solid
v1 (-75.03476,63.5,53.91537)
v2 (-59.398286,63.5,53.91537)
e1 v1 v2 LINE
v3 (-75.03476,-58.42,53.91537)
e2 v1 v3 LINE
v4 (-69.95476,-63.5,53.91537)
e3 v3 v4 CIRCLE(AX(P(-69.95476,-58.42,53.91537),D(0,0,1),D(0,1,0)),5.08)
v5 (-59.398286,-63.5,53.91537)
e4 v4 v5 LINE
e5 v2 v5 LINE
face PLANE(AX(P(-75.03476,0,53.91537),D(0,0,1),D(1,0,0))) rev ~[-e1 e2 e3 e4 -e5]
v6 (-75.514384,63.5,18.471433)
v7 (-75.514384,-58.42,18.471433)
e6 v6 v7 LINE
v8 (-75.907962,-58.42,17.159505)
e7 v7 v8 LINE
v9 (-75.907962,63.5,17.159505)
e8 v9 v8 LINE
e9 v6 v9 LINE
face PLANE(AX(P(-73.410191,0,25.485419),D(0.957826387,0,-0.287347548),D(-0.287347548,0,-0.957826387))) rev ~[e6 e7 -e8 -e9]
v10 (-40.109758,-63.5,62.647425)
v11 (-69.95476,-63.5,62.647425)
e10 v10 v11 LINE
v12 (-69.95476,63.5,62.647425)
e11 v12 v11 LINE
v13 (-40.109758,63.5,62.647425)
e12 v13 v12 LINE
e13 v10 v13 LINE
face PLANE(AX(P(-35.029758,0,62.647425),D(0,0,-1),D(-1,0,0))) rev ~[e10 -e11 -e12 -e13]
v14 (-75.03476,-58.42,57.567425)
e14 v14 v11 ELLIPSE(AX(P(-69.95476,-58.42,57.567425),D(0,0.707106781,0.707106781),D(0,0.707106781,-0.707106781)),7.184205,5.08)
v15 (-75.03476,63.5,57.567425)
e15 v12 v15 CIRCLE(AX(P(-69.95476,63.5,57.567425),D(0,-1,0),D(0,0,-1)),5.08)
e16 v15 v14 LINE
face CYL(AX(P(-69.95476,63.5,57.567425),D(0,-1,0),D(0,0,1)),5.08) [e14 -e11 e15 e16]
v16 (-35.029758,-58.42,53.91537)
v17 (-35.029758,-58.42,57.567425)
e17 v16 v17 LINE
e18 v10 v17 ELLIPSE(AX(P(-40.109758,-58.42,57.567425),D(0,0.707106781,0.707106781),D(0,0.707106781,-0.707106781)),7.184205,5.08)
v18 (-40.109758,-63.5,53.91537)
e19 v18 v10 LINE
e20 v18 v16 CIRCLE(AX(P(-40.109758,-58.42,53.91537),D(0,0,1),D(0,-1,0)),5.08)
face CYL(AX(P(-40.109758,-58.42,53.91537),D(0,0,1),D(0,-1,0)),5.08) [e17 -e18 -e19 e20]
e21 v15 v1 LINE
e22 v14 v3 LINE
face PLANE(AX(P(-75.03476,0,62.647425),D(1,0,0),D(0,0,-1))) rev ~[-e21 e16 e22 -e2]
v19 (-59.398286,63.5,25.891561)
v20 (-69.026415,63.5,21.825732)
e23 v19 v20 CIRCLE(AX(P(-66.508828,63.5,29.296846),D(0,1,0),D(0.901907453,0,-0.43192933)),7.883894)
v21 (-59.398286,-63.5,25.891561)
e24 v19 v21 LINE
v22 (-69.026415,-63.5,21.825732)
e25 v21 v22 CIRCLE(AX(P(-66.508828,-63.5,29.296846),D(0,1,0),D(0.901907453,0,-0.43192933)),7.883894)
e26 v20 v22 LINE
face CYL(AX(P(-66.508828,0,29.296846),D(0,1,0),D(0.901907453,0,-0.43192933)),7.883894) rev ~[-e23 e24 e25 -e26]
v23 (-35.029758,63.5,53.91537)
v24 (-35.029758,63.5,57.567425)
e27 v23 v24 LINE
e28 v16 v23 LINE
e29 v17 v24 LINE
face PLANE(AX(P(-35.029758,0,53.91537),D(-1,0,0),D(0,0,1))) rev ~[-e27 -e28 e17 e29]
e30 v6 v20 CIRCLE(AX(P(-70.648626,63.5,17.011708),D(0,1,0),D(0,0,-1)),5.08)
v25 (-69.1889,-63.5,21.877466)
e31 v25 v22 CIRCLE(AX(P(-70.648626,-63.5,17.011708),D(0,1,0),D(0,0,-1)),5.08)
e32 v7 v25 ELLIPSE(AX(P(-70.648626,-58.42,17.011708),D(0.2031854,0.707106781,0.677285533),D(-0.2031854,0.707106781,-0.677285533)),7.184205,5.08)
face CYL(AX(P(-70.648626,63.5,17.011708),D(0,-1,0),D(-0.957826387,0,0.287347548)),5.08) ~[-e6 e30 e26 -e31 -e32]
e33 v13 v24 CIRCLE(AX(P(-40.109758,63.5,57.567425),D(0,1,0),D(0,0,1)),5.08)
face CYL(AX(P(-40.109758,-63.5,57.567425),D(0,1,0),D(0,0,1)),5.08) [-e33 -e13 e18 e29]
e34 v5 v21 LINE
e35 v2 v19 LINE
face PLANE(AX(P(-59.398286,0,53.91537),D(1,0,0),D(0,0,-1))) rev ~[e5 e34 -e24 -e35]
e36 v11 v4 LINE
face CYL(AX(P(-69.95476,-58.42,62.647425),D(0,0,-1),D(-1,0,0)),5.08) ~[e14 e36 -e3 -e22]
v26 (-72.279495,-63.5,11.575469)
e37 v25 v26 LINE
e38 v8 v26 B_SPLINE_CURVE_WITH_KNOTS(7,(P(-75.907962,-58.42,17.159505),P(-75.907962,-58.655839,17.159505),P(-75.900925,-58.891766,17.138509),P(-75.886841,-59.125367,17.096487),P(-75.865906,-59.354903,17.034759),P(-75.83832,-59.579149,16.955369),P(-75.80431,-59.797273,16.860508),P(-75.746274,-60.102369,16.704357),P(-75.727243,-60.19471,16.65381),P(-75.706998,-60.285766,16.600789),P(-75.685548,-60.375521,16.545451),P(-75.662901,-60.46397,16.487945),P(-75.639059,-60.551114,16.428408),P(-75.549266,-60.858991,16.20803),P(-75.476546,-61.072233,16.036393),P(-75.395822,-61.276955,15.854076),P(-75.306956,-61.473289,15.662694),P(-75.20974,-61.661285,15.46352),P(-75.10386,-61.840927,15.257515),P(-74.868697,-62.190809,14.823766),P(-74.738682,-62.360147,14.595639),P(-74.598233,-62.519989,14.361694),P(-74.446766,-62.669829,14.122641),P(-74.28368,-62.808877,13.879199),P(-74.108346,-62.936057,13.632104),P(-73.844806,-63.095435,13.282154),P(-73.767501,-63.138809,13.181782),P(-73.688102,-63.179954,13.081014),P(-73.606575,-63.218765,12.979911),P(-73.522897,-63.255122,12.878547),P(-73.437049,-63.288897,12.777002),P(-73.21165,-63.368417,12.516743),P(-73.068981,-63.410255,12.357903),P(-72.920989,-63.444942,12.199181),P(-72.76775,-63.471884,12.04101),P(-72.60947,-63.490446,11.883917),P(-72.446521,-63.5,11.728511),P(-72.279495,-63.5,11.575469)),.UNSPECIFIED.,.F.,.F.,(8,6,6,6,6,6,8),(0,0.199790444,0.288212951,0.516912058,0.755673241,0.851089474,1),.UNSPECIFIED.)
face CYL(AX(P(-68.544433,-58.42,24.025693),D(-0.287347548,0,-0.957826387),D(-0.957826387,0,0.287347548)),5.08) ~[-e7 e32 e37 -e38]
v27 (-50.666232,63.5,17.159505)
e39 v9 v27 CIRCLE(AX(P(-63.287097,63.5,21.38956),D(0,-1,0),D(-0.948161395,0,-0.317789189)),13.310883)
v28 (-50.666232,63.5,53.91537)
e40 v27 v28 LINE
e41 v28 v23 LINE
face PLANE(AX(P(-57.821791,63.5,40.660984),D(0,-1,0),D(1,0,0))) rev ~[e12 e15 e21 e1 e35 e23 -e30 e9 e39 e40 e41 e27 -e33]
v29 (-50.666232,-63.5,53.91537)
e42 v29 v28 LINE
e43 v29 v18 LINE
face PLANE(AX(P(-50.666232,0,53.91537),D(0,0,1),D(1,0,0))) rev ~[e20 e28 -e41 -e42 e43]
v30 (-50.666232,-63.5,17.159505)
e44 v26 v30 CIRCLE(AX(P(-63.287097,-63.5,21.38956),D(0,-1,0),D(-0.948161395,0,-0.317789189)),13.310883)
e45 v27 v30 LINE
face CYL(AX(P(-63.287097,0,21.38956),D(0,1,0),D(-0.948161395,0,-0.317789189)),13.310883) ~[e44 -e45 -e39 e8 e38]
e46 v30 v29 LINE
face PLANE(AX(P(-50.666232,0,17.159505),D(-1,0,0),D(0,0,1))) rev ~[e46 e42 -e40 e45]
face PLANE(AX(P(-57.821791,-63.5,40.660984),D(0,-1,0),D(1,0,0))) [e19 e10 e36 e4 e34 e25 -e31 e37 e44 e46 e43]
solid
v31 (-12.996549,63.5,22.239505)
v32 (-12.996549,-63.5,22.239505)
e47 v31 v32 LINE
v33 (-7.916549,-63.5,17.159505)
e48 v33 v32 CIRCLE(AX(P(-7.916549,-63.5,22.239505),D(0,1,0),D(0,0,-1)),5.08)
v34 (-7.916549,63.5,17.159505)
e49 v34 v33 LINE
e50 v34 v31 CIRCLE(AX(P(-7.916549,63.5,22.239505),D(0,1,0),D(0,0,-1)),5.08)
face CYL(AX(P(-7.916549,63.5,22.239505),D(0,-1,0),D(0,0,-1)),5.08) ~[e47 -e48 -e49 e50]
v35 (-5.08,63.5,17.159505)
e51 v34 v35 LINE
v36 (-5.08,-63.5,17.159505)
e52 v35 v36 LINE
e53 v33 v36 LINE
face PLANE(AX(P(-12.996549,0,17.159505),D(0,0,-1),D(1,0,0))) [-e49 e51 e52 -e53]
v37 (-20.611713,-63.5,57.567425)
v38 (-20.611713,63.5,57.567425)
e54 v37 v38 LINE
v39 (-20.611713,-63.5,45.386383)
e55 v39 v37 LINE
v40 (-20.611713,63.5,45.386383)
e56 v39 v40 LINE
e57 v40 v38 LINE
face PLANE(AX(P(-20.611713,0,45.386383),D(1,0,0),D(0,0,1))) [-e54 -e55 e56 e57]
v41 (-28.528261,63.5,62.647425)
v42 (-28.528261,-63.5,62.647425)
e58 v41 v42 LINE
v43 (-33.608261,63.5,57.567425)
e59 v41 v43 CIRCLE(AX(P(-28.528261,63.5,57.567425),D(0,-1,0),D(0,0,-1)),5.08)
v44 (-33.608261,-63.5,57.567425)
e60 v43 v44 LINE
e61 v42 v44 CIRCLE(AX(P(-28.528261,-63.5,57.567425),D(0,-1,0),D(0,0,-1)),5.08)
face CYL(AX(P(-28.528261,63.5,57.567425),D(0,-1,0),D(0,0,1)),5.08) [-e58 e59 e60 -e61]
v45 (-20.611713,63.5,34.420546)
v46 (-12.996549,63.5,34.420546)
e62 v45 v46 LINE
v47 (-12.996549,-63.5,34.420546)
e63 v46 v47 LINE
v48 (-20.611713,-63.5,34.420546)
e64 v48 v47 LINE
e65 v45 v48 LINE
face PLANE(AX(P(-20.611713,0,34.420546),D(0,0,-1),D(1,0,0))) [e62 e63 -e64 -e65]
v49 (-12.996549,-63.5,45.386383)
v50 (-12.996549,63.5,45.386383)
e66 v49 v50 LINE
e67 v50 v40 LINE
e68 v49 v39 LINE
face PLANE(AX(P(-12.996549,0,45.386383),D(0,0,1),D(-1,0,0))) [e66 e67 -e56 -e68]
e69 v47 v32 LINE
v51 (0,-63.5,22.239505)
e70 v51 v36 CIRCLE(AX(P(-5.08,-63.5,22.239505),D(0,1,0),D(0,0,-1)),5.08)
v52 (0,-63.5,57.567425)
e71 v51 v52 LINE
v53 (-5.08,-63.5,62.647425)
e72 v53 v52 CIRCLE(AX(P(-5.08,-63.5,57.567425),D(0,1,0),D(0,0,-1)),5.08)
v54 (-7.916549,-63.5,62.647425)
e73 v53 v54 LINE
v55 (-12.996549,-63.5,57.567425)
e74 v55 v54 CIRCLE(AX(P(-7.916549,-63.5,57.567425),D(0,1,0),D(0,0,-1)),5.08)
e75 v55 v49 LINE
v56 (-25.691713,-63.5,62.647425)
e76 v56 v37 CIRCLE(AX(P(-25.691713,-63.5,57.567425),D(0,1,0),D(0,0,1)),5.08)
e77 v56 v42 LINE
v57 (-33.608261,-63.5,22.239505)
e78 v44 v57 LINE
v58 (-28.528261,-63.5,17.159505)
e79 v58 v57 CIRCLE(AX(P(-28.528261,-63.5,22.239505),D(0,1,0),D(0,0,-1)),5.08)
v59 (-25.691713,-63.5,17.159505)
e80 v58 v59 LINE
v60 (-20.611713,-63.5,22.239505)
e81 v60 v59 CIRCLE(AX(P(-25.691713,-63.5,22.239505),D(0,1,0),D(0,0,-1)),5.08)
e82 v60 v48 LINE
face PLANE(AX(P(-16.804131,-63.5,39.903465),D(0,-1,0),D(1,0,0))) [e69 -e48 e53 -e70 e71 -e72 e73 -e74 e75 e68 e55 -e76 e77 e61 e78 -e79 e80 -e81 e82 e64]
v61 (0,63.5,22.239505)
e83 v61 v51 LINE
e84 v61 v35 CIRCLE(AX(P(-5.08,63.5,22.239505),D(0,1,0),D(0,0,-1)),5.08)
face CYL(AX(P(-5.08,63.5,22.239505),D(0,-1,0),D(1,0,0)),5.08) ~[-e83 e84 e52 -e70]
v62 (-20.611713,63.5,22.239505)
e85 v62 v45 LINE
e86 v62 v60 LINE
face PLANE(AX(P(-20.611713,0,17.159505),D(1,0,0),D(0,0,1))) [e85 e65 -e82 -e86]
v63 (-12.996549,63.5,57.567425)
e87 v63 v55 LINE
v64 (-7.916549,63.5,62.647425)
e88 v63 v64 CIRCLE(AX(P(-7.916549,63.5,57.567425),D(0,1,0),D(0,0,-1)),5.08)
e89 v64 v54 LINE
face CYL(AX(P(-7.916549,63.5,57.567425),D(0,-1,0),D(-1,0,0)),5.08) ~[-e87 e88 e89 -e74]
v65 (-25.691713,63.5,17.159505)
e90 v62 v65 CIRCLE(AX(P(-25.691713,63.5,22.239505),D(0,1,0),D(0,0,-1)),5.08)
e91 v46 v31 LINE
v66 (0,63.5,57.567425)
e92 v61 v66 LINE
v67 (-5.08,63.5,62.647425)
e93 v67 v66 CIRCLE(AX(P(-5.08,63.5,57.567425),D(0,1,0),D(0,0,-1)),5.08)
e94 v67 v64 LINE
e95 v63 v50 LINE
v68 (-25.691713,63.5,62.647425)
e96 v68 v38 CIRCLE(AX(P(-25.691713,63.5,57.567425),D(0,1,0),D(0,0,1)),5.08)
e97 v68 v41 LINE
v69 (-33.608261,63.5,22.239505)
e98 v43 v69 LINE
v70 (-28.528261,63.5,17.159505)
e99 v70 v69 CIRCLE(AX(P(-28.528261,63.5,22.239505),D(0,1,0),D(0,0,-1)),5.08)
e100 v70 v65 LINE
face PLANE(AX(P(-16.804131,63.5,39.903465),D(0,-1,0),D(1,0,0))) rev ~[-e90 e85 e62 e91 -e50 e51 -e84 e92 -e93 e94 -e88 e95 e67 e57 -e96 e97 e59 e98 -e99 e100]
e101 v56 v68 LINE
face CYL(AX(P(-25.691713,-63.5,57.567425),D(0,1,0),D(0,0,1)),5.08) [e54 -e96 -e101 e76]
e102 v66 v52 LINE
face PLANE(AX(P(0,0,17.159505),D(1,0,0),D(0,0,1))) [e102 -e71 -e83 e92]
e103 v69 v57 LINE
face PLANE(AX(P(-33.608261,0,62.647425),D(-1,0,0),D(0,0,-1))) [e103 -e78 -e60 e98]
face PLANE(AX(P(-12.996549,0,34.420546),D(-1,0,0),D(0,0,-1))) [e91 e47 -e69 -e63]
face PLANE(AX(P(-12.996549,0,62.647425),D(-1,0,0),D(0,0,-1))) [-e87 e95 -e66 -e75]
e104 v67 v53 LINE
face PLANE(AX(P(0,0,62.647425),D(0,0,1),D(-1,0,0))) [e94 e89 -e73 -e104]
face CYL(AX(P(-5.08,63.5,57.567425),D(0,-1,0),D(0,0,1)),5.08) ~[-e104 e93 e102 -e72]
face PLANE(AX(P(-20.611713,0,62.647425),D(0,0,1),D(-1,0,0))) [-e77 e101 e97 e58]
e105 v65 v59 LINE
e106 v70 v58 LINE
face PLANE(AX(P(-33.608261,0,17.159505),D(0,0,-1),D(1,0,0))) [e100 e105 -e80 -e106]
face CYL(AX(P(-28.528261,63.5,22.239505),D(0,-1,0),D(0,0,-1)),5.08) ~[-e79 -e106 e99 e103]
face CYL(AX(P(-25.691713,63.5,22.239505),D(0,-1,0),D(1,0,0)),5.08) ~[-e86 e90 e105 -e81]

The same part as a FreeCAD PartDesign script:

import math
import FreeCAD as App
import Part
import Sketcher
Q = App.Units.Quantity


def edges_at(feature, points):
    """Names of the edges that pass closest to the given points."""
    edges = feature.Shape.Edges
    near = lambda p: min(range(len(edges)), key=lambda i: edges[i].distToShape(Part.Vertex(*p))[0])
    return sorted({f"Edge{near(p) + 1}" for p in points})


def add_polygon(sketch, points):
    """Adds a closed chain of lines whose ends are joined by coincident constraints."""
    first, n = sketch.GeometryCount, len(points)
    for a, b in zip(points, points[1:] + points[:1]):
        sketch.addGeometry(Part.LineSegment(App.Vector(*a, 0), App.Vector(*b, 0)), False)
    for i in range(n):
        sketch.addConstraint(Sketcher.Constraint("Coincident", first + i, 2, first + (i + 1) % n, 1))

doc = App.newDocument("Part")
body = doc.addObject("PartDesign::Body", "Body")
body.AllowCompound = True

sketch1 = body.newObject("Sketcher::SketchObject", "Sketch")
sketch1.AttachmentSupport = (doc.getObject("XZ_Plane"), [""])
sketch1.MapMode = "FlatFace"
sketch1.addGeometry(Part.LineSegment(App.Vector(-35, 63, 0), App.Vector(-75, 63, 0)), False)
sketch1.addGeometry(Part.LineSegment(App.Vector(-75, 63, 0), App.Vector(-75, 54, 0)), False)
sketch1.addGeometry(Part.LineSegment(App.Vector(-75, 54, 0), App.Vector(-59, 54, 0)), False)
sketch1.addGeometry(Part.LineSegment(App.Vector(-59, 54, 0), App.Vector(-59, 26, 0)), False)
sketch1.addGeometry(Part.ArcOfCircle(Part.Circle(App.Vector(-67, 29, 0), App.Vector(0, 0, 1), 8), math.radians(-151), math.radians(-26)), False)
sketch1.addGeometry(Part.LineSegment(App.Vector(-73, 25, 0), App.Vector(-76, 17, 0)), False)
sketch1.addGeometry(Part.ArcOfCircle(Part.Circle(App.Vector(-63, 21, 0), App.Vector(0, 0, 1), 13), math.radians(-161), math.radians(-19)), False)
sketch1.addGeometry(Part.LineSegment(App.Vector(-51, 17, 0), App.Vector(-51, 54, 0)), False)
sketch1.addGeometry(Part.LineSegment(App.Vector(-51, 54, 0), App.Vector(-35, 54, 0)), False)
sketch1.addGeometry(Part.LineSegment(App.Vector(-35, 54, 0), App.Vector(-35, 63, 0)), False)
add_polygon(sketch1, [(-21, 63), (-34, 63), (-34, 17), (-21, 17), (-21, 34), (-13, 34), (-13, 17), (0, 17), (0, 63), (-13, 63), (-13, 45), (-21, 45)])
sketch1.addConstraint(Sketcher.Constraint("Coincident", 0, 2, 1, 1))
sketch1.addConstraint(Sketcher.Constraint("Coincident", 1, 2, 2, 1))
sketch1.addConstraint(Sketcher.Constraint("Coincident", 2, 2, 3, 1))
sketch1.addConstraint(Sketcher.Constraint("Coincident", 3, 2, 4, 2))
sketch1.addConstraint(Sketcher.Constraint("Coincident", 4, 1, 5, 1))
sketch1.addConstraint(Sketcher.Constraint("Coincident", 5, 2, 6, 1))
sketch1.addConstraint(Sketcher.Constraint("Coincident", 6, 2, 7, 1))
sketch1.addConstraint(Sketcher.Constraint("Coincident", 7, 2, 8, 1))
sketch1.addConstraint(Sketcher.Constraint("Coincident", 8, 2, 9, 1))
sketch1.addConstraint(Sketcher.Constraint("Coincident", 9, 2, 0, 1))
sketch1.addConstraint(Sketcher.Constraint("Horizontal", 0))
sketch1.addConstraint(Sketcher.Constraint("Vertical", 1))
sketch1.addConstraint(Sketcher.Constraint("Horizontal", 2))
sketch1.addConstraint(Sketcher.Constraint("Vertical", 3))
sketch1.addConstraint(Sketcher.Constraint("Vertical", 7))
sketch1.addConstraint(Sketcher.Constraint("Horizontal", 8))
sketch1.addConstraint(Sketcher.Constraint("Vertical", 9))
sketch1.addConstraint(Sketcher.Constraint("Horizontal", 10))
sketch1.addConstraint(Sketcher.Constraint("Vertical", 11))
sketch1.addConstraint(Sketcher.Constraint("Horizontal", 12))
sketch1.addConstraint(Sketcher.Constraint("Vertical", 13))
sketch1.addConstraint(Sketcher.Constraint("Horizontal", 14))
sketch1.addConstraint(Sketcher.Constraint("Vertical", 15))
sketch1.addConstraint(Sketcher.Constraint("Horizontal", 16))
sketch1.addConstraint(Sketcher.Constraint("Vertical", 17))
sketch1.addConstraint(Sketcher.Constraint("Horizontal", 18))
sketch1.addConstraint(Sketcher.Constraint("Vertical", 19))
sketch1.addConstraint(Sketcher.Constraint("Horizontal", 20))
sketch1.addConstraint(Sketcher.Constraint("Vertical", 21))
sketch1.addConstraint(Sketcher.Constraint("PointOnObject", 16, 2, -2))
sketch1.addConstraint(Sketcher.Constraint("Horizontal", 5, 2, 6, 2))
sketch1.addConstraint(Sketcher.Constraint("Horizontal", 2, 2, 7, 2))
sketch1.addConstraint(Sketcher.Constraint("Horizontal", 9, 2, 10, 2))
sketch1.addConstraint(Sketcher.Constraint("Horizontal", 6, 2, 11, 2))
sketch1.addConstraint(Sketcher.Constraint("Horizontal", 12, 2, 15, 2))
sketch1.addConstraint(Sketcher.Constraint("Horizontal", 10, 2, 17, 2))
sketch1.addConstraint(Sketcher.Constraint("Vertical", 15, 2, 18, 2))
sketch1.addConstraint(Sketcher.Constraint("Vertical", 13, 2, 20, 2))
sketch1.addConstraint(Sketcher.Constraint("Equal", 2, 8))
sketch1.addConstraint(Sketcher.Constraint("Equal", 12, 16))
sketch1.addConstraint(Sketcher.Constraint("Equal", 15, 19))
sketch1.addConstraint(Sketcher.Constraint("DistanceX", 0, 2, 0, 1, Q("1.5750001 in")))
sketch1.addConstraint(Sketcher.Constraint("Radius", 4, Q("7.883894 mm")))
sketch1.addConstraint(Sketcher.Constraint("Radius", 6, Q("13.310883 mm")))
sketch1.addConstraint(Sketcher.Constraint("DistanceX", 16, 1, 16, 2, Q("12.996549 mm")))
sketch1.addConstraint(Sketcher.Constraint("DistanceY", 3, 2, 3, 1, Q("28.023809 mm")))
sketch1.addConstraint(Sketcher.Constraint("DistanceY", 11, 2, 11, 1, Q("45.48792 mm")))
sketch1.addConstraint(Sketcher.Constraint("DistanceY", 13, 1, 13, 2, Q("17.261041 mm")))
sketch1.addConstraint(Sketcher.Constraint("DistanceY", 6, 3, 3, 2, Q("4.502001 mm")))
sketch1.addConstraint(Sketcher.Constraint("DistanceX", 5, 2, 1, 2, Q("0.873202 mm")))
sketch1.addConstraint(Sketcher.Constraint("DistanceX", 0, 2, 10, 2, Q("41.426499 mm")))
sketch1.addConstraint(Sketcher.Constraint("Distance", 5, Q("8.692508 mm")))
sketch1.addConstraint(Sketcher.Constraint("DistanceX", 2, 1, 2, 2, Q("15.636474 mm")))
sketch1.addConstraint(Sketcher.Constraint("DistanceX", 14, 1, 14, 2, Q("7.615164 mm")))
sketch1.addConstraint(Sketcher.Constraint("DistanceX", 4, 3, -1, 1, Q("66.508828 mm")))
sketch1.addConstraint(Sketcher.Constraint("DistanceY", -1, 1, 6, 3, Q("21.38956 mm")))
pad1 = body.newObject("PartDesign::Pad", "Pad")
pad1.Profile = sketch1
pad1.Length = Q("5 in")
pad1.Midplane = True
doc.recompute()

fillet = body.newObject("PartDesign::Fillet", "Fillet")
fillet.Base = (pad1, edges_at(pad1, [
    (-74.659, -63.5, 21.322),
    (-75.035, -63.5, 58.281),
    (-75.035, 0, 62.647),
    (-35.03, 0, 62.647),
    (-35.03, -63.5, 58.281),
    (-73.41, 0, 25.485),
    (0, 0, 62.647),
    (-12.997, 0, 62.647),
    (-20.612, 0, 62.647),
    (-33.608, 0, 62.647),
    (0, 0, 17.16),
    (-20.612, 0, 17.16),
    (-33.608, 0, 17.16),
    (-12.997, 0, 17.16),
]))
fillet.Radius = Q("0.2 in")

doc.recompute()
